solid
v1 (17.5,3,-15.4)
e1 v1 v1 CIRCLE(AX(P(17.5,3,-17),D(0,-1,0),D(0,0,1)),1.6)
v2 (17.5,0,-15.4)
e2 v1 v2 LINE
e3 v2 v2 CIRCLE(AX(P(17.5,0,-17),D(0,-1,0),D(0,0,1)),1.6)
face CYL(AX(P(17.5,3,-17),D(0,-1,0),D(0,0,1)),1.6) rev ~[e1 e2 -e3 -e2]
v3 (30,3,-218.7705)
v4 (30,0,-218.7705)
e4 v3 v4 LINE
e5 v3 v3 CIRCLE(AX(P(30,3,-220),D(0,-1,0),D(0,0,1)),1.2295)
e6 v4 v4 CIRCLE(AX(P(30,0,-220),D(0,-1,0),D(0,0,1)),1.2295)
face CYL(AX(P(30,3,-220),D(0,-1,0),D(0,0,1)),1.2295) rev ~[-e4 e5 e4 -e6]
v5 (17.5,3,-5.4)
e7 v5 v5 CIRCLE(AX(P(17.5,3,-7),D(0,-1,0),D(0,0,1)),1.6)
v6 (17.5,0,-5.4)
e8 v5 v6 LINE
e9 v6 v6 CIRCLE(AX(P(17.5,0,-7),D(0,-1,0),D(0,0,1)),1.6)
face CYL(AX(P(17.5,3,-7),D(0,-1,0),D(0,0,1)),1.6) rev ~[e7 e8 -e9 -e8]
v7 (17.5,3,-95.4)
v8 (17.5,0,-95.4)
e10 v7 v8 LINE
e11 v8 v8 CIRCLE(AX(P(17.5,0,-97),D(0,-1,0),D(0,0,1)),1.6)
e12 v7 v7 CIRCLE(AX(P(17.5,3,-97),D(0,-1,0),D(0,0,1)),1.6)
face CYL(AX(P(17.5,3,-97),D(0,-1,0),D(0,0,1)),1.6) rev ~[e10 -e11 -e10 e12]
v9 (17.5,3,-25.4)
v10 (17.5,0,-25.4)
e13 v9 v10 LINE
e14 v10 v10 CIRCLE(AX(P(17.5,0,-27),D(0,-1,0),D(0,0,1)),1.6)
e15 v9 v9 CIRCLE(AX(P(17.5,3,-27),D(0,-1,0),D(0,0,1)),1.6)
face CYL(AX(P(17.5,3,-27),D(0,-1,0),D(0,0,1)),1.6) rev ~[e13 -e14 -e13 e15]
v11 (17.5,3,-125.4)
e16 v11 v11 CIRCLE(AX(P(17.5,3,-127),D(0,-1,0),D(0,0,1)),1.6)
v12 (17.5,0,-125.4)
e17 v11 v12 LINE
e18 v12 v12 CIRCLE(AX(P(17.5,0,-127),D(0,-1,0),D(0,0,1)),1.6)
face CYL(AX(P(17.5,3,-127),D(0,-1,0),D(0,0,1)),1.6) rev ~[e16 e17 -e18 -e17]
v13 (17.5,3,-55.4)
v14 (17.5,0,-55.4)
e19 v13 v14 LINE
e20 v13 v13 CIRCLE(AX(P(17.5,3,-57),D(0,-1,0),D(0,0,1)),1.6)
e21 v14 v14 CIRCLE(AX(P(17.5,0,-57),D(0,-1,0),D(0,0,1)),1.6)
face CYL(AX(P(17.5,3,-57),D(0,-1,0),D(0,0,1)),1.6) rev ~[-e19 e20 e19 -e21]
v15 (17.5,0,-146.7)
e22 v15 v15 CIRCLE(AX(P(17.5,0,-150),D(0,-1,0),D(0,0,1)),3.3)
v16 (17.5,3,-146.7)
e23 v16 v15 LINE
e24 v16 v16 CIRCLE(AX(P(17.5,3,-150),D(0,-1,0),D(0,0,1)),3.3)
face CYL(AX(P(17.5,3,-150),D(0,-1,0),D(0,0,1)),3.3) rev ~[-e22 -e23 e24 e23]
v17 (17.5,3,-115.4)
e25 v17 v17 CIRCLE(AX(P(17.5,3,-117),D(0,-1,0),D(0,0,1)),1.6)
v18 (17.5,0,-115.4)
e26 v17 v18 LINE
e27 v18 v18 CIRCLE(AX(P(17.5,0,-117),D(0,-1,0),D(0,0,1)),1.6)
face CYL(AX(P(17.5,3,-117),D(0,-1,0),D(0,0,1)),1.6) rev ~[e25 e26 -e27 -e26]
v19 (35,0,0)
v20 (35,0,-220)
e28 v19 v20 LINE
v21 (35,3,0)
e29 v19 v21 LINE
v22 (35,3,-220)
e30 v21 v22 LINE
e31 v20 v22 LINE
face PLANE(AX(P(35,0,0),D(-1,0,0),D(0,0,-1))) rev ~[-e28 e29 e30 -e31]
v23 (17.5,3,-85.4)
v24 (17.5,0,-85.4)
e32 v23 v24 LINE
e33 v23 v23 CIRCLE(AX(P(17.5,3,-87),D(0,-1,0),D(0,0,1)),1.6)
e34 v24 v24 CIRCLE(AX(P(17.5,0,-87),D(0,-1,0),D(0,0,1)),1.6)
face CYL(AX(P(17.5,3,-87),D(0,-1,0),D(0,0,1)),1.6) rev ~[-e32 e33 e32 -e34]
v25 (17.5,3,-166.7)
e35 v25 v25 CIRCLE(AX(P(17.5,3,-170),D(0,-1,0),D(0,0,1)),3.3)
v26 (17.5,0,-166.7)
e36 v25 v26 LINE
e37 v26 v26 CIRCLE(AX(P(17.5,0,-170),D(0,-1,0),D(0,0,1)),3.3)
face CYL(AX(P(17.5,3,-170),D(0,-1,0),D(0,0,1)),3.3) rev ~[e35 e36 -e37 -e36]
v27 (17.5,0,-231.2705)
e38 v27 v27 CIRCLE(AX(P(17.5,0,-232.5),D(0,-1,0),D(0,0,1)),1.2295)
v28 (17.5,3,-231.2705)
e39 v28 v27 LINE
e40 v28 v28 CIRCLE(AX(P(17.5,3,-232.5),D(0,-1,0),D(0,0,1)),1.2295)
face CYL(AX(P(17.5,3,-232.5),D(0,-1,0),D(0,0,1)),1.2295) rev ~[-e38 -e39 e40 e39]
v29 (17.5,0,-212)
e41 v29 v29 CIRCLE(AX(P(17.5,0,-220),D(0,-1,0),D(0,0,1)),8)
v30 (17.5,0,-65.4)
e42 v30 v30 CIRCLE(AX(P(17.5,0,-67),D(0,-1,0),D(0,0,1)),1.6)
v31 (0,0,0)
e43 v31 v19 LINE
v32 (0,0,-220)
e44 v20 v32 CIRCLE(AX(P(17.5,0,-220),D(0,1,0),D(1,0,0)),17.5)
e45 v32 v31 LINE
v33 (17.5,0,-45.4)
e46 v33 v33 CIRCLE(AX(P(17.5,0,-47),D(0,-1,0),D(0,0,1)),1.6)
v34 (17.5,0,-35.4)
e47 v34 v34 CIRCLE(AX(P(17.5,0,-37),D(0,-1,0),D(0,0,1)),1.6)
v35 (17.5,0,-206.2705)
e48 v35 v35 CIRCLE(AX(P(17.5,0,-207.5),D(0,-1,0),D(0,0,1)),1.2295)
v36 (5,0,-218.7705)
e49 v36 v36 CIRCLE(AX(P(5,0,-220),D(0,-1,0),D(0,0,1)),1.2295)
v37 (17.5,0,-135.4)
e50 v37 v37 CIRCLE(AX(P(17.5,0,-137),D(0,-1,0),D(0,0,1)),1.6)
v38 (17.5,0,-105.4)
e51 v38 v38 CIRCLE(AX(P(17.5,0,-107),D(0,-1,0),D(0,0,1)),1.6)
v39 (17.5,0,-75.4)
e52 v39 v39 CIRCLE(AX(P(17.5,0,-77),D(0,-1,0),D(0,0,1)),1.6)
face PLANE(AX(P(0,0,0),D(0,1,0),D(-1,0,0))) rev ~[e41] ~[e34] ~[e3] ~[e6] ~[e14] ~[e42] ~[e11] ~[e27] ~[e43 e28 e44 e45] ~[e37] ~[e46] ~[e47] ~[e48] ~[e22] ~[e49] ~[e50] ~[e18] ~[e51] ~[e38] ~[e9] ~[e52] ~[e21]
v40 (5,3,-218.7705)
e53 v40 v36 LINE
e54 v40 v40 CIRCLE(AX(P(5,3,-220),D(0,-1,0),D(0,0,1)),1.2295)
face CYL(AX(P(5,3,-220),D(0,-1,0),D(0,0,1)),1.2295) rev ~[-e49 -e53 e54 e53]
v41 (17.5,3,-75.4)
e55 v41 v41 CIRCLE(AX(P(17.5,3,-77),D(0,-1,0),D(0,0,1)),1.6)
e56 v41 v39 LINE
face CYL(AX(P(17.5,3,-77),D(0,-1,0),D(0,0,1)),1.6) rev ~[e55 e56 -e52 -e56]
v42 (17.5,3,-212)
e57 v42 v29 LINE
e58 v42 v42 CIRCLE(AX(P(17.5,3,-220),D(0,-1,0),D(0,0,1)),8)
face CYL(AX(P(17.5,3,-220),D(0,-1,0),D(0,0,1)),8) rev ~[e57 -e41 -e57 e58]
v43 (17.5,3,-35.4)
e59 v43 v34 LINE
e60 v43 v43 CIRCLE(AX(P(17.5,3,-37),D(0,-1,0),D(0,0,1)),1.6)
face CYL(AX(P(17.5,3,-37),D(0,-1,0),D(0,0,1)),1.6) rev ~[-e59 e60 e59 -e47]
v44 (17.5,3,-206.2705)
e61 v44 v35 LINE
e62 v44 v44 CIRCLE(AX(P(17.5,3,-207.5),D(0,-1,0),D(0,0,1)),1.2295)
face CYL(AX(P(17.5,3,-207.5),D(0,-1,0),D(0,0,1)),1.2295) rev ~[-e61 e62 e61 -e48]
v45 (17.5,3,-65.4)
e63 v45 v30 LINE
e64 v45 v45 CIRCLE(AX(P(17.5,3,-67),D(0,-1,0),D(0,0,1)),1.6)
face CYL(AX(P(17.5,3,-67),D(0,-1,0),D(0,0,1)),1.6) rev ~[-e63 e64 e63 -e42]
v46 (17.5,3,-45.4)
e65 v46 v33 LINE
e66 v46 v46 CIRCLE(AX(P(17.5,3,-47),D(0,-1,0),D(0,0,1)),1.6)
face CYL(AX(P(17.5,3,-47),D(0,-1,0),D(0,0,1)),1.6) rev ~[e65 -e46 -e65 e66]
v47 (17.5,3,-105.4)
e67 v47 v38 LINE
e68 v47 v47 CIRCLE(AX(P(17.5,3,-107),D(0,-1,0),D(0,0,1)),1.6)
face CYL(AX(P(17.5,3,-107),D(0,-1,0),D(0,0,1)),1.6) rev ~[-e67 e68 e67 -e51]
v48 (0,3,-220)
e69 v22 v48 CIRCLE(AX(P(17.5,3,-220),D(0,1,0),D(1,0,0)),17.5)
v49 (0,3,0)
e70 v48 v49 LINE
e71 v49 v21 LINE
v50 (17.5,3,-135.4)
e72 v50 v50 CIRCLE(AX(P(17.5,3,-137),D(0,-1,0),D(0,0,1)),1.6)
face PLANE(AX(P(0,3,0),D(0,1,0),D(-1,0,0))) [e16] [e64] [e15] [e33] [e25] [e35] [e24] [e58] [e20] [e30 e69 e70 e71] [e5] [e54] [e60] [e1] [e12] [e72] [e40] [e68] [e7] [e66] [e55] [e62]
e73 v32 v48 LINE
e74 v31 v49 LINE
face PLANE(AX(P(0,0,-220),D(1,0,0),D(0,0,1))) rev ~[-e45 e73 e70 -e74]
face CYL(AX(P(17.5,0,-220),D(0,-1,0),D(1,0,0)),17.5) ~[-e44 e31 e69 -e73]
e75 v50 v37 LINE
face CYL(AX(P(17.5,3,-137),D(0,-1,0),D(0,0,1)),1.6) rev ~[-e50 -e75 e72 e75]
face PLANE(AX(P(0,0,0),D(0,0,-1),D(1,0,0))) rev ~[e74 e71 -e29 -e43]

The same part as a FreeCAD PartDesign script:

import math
import FreeCAD as App
import Part
import Sketcher

doc = App.newDocument("Part")
params = doc.addObject("Spreadsheet::Sheet", "Params")
for row, (alias, value) in enumerate([
    ("sketch1_radius", "17.5 mm"),
    ("sketch1_height", "220 mm"),
    ("pad1_length", "3 mm"),
    ("sketch2_diameter", "16 mm"),
    ("hole_diameter", "16 mm"),
    ("hole2_diameter", "2.459 mm"),
    ("sketch4_diameter", "3.2 mm"),
    ("hole3_diameter", "3.2 mm"),
    ("sketch5_diameter", "6.6 mm"),
    ("hole4_diameter", "6.6 mm"),
], start=1):
    params.set(f"A{row}", alias)
    params.set(f"B{row}", "=" + value)
    params.setAlias(f"B{row}", alias)

body = doc.addObject("PartDesign::Body", "Body")

# Sketch on XZ plane
sketch1 = doc.addObject("Sketcher::SketchObject", "Sketch")
body.addObject(sketch1)
sketch1.AttachmentSupport = (doc.XZ_Plane, [""])
sketch1.MapMode = "FlatFace"
sketch1.addGeometry(Part.LineSegment(App.Vector(0, -220, 0), App.Vector(0, 0, 0)), False)
sketch1.addGeometry(Part.LineSegment(App.Vector(0, 0, 0), App.Vector(35, 0, 0)), False)
sketch1.addGeometry(Part.LineSegment(App.Vector(35, 0, 0), App.Vector(35, -220, 0)), False)
sketch1.addGeometry(Part.ArcOfCircle(Part.Circle(App.Vector(18, -220, 0), App.Vector(0, 0, 1), 18), math.radians(180), math.radians(360)), False)
sketch1.addConstraint(Sketcher.Constraint("Coincident", 0, 2, 1, 1))
sketch1.addConstraint(Sketcher.Constraint("Coincident", 1, 2, 2, 1))
sketch1.addConstraint(Sketcher.Constraint("Tangent", 2, 2, 3, 2))
sketch1.addConstraint(Sketcher.Constraint("Tangent", 3, 1, 0, 1))
sketch1.addConstraint(Sketcher.Constraint("Vertical", 0))
sketch1.addConstraint(Sketcher.Constraint("Horizontal", 1))
sketch1.addConstraint(Sketcher.Constraint("Vertical", 2))
sketch1.addConstraint(Sketcher.Constraint("Coincident", 0, 2, -1, 1))
sketch1.addConstraint(Sketcher.Constraint("Radius", 3, 17.5))
sketch1.addConstraint(Sketcher.Constraint("DistanceY", 0, 1, 0, 2, 220.0))
sketch1.setExpression("Constraints[8]", "Params.sketch1_radius")
sketch1.setExpression("Constraints[9]", "Params.sketch1_height")
pad1 = doc.addObject("PartDesign::Pad", "Pad")
body.addObject(pad1)
pad1.Profile = sketch1
pad1.setExpression("Length", "Params.pad1_length")
pad1.Reversed = True

# Sketch on XZ plane
sketch2 = doc.addObject("Sketcher::SketchObject", "Sketch001")
body.addObject(sketch2)
sketch2.AttachmentSupport = (doc.XZ_Plane, [""])
sketch2.MapMode = "FlatFace"
sketch2.AttachmentOffset = App.Placement(App.Vector(0, 0, -3), App.Rotation())
sketch2.addGeometry(Part.Circle(App.Vector(18, -220, 0), App.Vector(0, 0, 1), 8), False)
sketch2.addConstraint(Sketcher.Constraint("Diameter", 0, 16.0))
sketch2.addConstraint(Sketcher.Constraint("DistanceY", 0, 3, -1, 1, 220.0))
sketch2.addConstraint(Sketcher.Constraint("DistanceX", -1, 1, 0, 3, 17.5))
sketch2.setExpression("Constraints[0]", "Params.sketch2_diameter")
doc.recompute()
hole = doc.addObject("PartDesign::Hole", "Hole")
body.addObject(hole)
hole.Profile = sketch2
hole.ThreadType = "None"
hole.setExpression("Diameter", "Params.hole_diameter")
hole.DepthType = "ThroughAll"
hole.Reversed = True

# Sketch on XZ plane
sketch3 = doc.addObject("Sketcher::SketchObject", "Sketch002")
body.addObject(sketch3)
sketch3.AttachmentSupport = (doc.XZ_Plane, [""])
sketch3.MapMode = "FlatFace"
sketch3.AttachmentOffset = App.Placement(App.Vector(0, 0, -3), App.Rotation())
sketch3.addGeometry(Part.Circle(App.Vector(5, -220, 0), App.Vector(0, 0, 1), 1.2), False)
sketch3.addGeometry(Part.Circle(App.Vector(30, -220, 0), App.Vector(0, 0, 1), 1.2), False)
sketch3.addGeometry(Part.Circle(App.Vector(17.5, -232.5, 0), App.Vector(0, 0, 1), 1.2), False)
sketch3.addGeometry(Part.Circle(App.Vector(17.5, -207.5, 0), App.Vector(0, 0, 1), 1.2), False)
sketch3.addConstraint(Sketcher.Constraint("Equal", 0, 1))
sketch3.addConstraint(Sketcher.Constraint("Equal", 1, 2))
sketch3.addConstraint(Sketcher.Constraint("Equal", 2, 3))
sketch3.addConstraint(Sketcher.Constraint("Horizontal", 0, 3, 1, 3))
sketch3.addConstraint(Sketcher.Constraint("Vertical", 2, 3, 3, 3))
sketch3.addConstraint(Sketcher.Constraint("Diameter", 0, 2.459))
sketch3.addConstraint(Sketcher.Constraint("DistanceX", -1, 1, 0, 3, 5.0))
sketch3.addConstraint(Sketcher.Constraint("DistanceY", 0, 3, -1, 1, 220.0))
sketch3.addConstraint(Sketcher.Constraint("DistanceX", -1, 1, 1, 3, 30.0))
sketch3.addConstraint(Sketcher.Constraint("DistanceY", 2, 3, 3, 3, 25.0))
sketch3.addConstraint(Sketcher.Constraint("DistanceX", -1, 1, 2, 3, 17.5))
sketch3.addConstraint(Sketcher.Constraint("DistanceY", 2, 3, -1, 1, 232.5))
doc.recompute()
hole2 = doc.addObject("PartDesign::Hole", "Hole001")
body.addObject(hole2)
hole2.Profile = sketch3
hole2.ThreadType = "None"
hole2.setExpression("Diameter", "Params.hole2_diameter")
hole2.DepthType = "ThroughAll"
hole2.Reversed = True

# Sketch on XZ plane
sketch4 = doc.addObject("Sketcher::SketchObject", "Sketch003")
body.addObject(sketch4)
sketch4.AttachmentSupport = (doc.XZ_Plane, [""])
sketch4.MapMode = "FlatFace"
sketch4.AttachmentOffset = App.Placement(App.Vector(0, 0, -3), App.Rotation())
sketch4.addGeometry(Part.Circle(App.Vector(17.5, -137, 0), App.Vector(0, 0, 1), 1.6), False)
sketch4.addGeometry(Part.Circle(App.Vector(17.5, -127, 0), App.Vector(0, 0, 1), 1.6), False)
sketch4.addGeometry(Part.Circle(App.Vector(17.5, -117, 0), App.Vector(0, 0, 1), 1.6), False)
sketch4.addGeometry(Part.Circle(App.Vector(17.5, -107, 0), App.Vector(0, 0, 1), 1.6), False)
sketch4.addGeometry(Part.Circle(App.Vector(17.5, -97, 0), App.Vector(0, 0, 1), 1.6), False)
sketch4.addGeometry(Part.Circle(App.Vector(17.5, -87, 0), App.Vector(0, 0, 1), 1.6), False)
sketch4.addGeometry(Part.Circle(App.Vector(17.5, -77, 0), App.Vector(0, 0, 1), 1.6), False)
sketch4.addGeometry(Part.Circle(App.Vector(17.5, -67, 0), App.Vector(0, 0, 1), 1.6), False)
sketch4.addGeometry(Part.Circle(App.Vector(17.5, -57, 0), App.Vector(0, 0, 1), 1.6), False)
sketch4.addGeometry(Part.Circle(App.Vector(17.5, -47, 0), App.Vector(0, 0, 1), 1.6), False)
sketch4.addGeometry(Part.Circle(App.Vector(17.5, -37, 0), App.Vector(0, 0, 1), 1.6), False)
sketch4.addGeometry(Part.Circle(App.Vector(17.5, -27, 0), App.Vector(0, 0, 1), 1.6), False)
sketch4.addGeometry(Part.Circle(App.Vector(17.5, -17, 0), App.Vector(0, 0, 1), 1.6), False)
sketch4.addGeometry(Part.Circle(App.Vector(17.5, -7, 0), App.Vector(0, 0, 1), 1.6), False)
sketch4.addConstraint(Sketcher.Constraint("Equal", 0, 1))
sketch4.addConstraint(Sketcher.Constraint("Equal", 1, 2))
sketch4.addConstraint(Sketcher.Constraint("Equal", 2, 3))
sketch4.addConstraint(Sketcher.Constraint("Equal", 3, 4))
sketch4.addConstraint(Sketcher.Constraint("Equal", 4, 5))
sketch4.addConstraint(Sketcher.Constraint("Equal", 5, 6))
sketch4.addConstraint(Sketcher.Constraint("Equal", 6, 7))
sketch4.addConstraint(Sketcher.Constraint("Equal", 7, 8))
sketch4.addConstraint(Sketcher.Constraint("Equal", 8, 9))
sketch4.addConstraint(Sketcher.Constraint("Equal", 9, 10))
sketch4.addConstraint(Sketcher.Constraint("Equal", 10, 11))
sketch4.addConstraint(Sketcher.Constraint("Equal", 11, 12))
sketch4.addConstraint(Sketcher.Constraint("Equal", 12, 13))
sketch4.addConstraint(Sketcher.Constraint("Vertical", 0, 3, 1, 3))
sketch4.addConstraint(Sketcher.Constraint("Vertical", 1, 3, 2, 3))
sketch4.addConstraint(Sketcher.Constraint("Vertical", 2, 3, 3, 3))
sketch4.addConstraint(Sketcher.Constraint("Vertical", 3, 3, 4, 3))
sketch4.addConstraint(Sketcher.Constraint("Vertical", 4, 3, 5, 3))
sketch4.addConstraint(Sketcher.Constraint("Vertical", 5, 3, 6, 3))
sketch4.addConstraint(Sketcher.Constraint("Vertical", 6, 3, 7, 3))
sketch4.addConstraint(Sketcher.Constraint("Vertical", 7, 3, 8, 3))
sketch4.addConstraint(Sketcher.Constraint("Vertical", 8, 3, 9, 3))
sketch4.addConstraint(Sketcher.Constraint("Vertical", 9, 3, 10, 3))
sketch4.addConstraint(Sketcher.Constraint("Vertical", 10, 3, 11, 3))
sketch4.addConstraint(Sketcher.Constraint("Vertical", 11, 3, 12, 3))
sketch4.addConstraint(Sketcher.Constraint("Vertical", 12, 3, 13, 3))
sketch4.addConstraint(Sketcher.Constraint("Diameter", 0, 3.2))
sketch4.addConstraint(Sketcher.Constraint("DistanceY", 0, 3, -1, 1, 137.0))
sketch4.addConstraint(Sketcher.Constraint("DistanceY", 1, 3, -1, 1, 127.0))
sketch4.addConstraint(Sketcher.Constraint("DistanceY", 2, 3, -1, 1, 117.0))
sketch4.addConstraint(Sketcher.Constraint("DistanceY", 3, 3, -1, 1, 107.0))
sketch4.addConstraint(Sketcher.Constraint("DistanceY", 4, 3, -1, 1, 97.0))
sketch4.addConstraint(Sketcher.Constraint("DistanceY", 5, 3, -1, 1, 87.0))
sketch4.addConstraint(Sketcher.Constraint("DistanceY", 6, 3, -1, 1, 77.0))
sketch4.addConstraint(Sketcher.Constraint("DistanceY", 7, 3, -1, 1, 67.0))
sketch4.addConstraint(Sketcher.Constraint("DistanceY", 8, 3, -1, 1, 57.0))
sketch4.addConstraint(Sketcher.Constraint("DistanceY", 9, 3, -1, 1, 47.0))
sketch4.addConstraint(Sketcher.Constraint("DistanceY", 10, 3, -1, 1, 37.0))
sketch4.addConstraint(Sketcher.Constraint("DistanceY", 11, 3, -1, 1, 27.0))
sketch4.addConstraint(Sketcher.Constraint("DistanceY", 12, 3, -1, 1, 17.0))
sketch4.addConstraint(Sketcher.Constraint("DistanceY", 13, 3, -1, 1, 7.0))
sketch4.addConstraint(Sketcher.Constraint("DistanceX", -1, 1, 0, 3, 17.5))
sketch4.setExpression("Constraints[26]", "Params.sketch4_diameter")
doc.recompute()
hole3 = doc.addObject("PartDesign::Hole", "Hole002")
body.addObject(hole3)
hole3.Profile = sketch4
hole3.ThreadType = "None"
hole3.setExpression("Diameter", "Params.hole3_diameter")
hole3.DepthType = "ThroughAll"
hole3.Reversed = True

# Sketch on XZ plane
sketch5 = doc.addObject("Sketcher::SketchObject", "Sketch004")
body.addObject(sketch5)
sketch5.AttachmentSupport = (doc.XZ_Plane, [""])
sketch5.MapMode = "FlatFace"
sketch5.AttachmentOffset = App.Placement(App.Vector(0, 0, -3), App.Rotation())
sketch5.addGeometry(Part.Circle(App.Vector(17.5, -150, 0), App.Vector(0, 0, 1), 3.3), False)
sketch5.addGeometry(Part.Circle(App.Vector(17.5, -170, 0), App.Vector(0, 0, 1), 3.3), False)
sketch5.addConstraint(Sketcher.Constraint("Equal", 0, 1))
sketch5.addConstraint(Sketcher.Constraint("Vertical", 0, 3, 1, 3))
sketch5.addConstraint(Sketcher.Constraint("Diameter", 0, 6.6))
sketch5.addConstraint(Sketcher.Constraint("DistanceY", 0, 3, -1, 1, 150.0))
sketch5.addConstraint(Sketcher.Constraint("DistanceY", 1, 3, -1, 1, 170.0))
sketch5.addConstraint(Sketcher.Constraint("DistanceX", -1, 1, 0, 3, 17.5))
sketch5.setExpression("Constraints[2]", "Params.sketch5_diameter")
doc.recompute()
hole4 = doc.addObject("PartDesign::Hole", "Hole003")
body.addObject(hole4)
hole4.Profile = sketch5
hole4.ThreadType = "None"
hole4.setExpression("Diameter", "Params.hole4_diameter")
hole4.DepthType = "ThroughAll"
hole4.Reversed = True

doc.recompute()
